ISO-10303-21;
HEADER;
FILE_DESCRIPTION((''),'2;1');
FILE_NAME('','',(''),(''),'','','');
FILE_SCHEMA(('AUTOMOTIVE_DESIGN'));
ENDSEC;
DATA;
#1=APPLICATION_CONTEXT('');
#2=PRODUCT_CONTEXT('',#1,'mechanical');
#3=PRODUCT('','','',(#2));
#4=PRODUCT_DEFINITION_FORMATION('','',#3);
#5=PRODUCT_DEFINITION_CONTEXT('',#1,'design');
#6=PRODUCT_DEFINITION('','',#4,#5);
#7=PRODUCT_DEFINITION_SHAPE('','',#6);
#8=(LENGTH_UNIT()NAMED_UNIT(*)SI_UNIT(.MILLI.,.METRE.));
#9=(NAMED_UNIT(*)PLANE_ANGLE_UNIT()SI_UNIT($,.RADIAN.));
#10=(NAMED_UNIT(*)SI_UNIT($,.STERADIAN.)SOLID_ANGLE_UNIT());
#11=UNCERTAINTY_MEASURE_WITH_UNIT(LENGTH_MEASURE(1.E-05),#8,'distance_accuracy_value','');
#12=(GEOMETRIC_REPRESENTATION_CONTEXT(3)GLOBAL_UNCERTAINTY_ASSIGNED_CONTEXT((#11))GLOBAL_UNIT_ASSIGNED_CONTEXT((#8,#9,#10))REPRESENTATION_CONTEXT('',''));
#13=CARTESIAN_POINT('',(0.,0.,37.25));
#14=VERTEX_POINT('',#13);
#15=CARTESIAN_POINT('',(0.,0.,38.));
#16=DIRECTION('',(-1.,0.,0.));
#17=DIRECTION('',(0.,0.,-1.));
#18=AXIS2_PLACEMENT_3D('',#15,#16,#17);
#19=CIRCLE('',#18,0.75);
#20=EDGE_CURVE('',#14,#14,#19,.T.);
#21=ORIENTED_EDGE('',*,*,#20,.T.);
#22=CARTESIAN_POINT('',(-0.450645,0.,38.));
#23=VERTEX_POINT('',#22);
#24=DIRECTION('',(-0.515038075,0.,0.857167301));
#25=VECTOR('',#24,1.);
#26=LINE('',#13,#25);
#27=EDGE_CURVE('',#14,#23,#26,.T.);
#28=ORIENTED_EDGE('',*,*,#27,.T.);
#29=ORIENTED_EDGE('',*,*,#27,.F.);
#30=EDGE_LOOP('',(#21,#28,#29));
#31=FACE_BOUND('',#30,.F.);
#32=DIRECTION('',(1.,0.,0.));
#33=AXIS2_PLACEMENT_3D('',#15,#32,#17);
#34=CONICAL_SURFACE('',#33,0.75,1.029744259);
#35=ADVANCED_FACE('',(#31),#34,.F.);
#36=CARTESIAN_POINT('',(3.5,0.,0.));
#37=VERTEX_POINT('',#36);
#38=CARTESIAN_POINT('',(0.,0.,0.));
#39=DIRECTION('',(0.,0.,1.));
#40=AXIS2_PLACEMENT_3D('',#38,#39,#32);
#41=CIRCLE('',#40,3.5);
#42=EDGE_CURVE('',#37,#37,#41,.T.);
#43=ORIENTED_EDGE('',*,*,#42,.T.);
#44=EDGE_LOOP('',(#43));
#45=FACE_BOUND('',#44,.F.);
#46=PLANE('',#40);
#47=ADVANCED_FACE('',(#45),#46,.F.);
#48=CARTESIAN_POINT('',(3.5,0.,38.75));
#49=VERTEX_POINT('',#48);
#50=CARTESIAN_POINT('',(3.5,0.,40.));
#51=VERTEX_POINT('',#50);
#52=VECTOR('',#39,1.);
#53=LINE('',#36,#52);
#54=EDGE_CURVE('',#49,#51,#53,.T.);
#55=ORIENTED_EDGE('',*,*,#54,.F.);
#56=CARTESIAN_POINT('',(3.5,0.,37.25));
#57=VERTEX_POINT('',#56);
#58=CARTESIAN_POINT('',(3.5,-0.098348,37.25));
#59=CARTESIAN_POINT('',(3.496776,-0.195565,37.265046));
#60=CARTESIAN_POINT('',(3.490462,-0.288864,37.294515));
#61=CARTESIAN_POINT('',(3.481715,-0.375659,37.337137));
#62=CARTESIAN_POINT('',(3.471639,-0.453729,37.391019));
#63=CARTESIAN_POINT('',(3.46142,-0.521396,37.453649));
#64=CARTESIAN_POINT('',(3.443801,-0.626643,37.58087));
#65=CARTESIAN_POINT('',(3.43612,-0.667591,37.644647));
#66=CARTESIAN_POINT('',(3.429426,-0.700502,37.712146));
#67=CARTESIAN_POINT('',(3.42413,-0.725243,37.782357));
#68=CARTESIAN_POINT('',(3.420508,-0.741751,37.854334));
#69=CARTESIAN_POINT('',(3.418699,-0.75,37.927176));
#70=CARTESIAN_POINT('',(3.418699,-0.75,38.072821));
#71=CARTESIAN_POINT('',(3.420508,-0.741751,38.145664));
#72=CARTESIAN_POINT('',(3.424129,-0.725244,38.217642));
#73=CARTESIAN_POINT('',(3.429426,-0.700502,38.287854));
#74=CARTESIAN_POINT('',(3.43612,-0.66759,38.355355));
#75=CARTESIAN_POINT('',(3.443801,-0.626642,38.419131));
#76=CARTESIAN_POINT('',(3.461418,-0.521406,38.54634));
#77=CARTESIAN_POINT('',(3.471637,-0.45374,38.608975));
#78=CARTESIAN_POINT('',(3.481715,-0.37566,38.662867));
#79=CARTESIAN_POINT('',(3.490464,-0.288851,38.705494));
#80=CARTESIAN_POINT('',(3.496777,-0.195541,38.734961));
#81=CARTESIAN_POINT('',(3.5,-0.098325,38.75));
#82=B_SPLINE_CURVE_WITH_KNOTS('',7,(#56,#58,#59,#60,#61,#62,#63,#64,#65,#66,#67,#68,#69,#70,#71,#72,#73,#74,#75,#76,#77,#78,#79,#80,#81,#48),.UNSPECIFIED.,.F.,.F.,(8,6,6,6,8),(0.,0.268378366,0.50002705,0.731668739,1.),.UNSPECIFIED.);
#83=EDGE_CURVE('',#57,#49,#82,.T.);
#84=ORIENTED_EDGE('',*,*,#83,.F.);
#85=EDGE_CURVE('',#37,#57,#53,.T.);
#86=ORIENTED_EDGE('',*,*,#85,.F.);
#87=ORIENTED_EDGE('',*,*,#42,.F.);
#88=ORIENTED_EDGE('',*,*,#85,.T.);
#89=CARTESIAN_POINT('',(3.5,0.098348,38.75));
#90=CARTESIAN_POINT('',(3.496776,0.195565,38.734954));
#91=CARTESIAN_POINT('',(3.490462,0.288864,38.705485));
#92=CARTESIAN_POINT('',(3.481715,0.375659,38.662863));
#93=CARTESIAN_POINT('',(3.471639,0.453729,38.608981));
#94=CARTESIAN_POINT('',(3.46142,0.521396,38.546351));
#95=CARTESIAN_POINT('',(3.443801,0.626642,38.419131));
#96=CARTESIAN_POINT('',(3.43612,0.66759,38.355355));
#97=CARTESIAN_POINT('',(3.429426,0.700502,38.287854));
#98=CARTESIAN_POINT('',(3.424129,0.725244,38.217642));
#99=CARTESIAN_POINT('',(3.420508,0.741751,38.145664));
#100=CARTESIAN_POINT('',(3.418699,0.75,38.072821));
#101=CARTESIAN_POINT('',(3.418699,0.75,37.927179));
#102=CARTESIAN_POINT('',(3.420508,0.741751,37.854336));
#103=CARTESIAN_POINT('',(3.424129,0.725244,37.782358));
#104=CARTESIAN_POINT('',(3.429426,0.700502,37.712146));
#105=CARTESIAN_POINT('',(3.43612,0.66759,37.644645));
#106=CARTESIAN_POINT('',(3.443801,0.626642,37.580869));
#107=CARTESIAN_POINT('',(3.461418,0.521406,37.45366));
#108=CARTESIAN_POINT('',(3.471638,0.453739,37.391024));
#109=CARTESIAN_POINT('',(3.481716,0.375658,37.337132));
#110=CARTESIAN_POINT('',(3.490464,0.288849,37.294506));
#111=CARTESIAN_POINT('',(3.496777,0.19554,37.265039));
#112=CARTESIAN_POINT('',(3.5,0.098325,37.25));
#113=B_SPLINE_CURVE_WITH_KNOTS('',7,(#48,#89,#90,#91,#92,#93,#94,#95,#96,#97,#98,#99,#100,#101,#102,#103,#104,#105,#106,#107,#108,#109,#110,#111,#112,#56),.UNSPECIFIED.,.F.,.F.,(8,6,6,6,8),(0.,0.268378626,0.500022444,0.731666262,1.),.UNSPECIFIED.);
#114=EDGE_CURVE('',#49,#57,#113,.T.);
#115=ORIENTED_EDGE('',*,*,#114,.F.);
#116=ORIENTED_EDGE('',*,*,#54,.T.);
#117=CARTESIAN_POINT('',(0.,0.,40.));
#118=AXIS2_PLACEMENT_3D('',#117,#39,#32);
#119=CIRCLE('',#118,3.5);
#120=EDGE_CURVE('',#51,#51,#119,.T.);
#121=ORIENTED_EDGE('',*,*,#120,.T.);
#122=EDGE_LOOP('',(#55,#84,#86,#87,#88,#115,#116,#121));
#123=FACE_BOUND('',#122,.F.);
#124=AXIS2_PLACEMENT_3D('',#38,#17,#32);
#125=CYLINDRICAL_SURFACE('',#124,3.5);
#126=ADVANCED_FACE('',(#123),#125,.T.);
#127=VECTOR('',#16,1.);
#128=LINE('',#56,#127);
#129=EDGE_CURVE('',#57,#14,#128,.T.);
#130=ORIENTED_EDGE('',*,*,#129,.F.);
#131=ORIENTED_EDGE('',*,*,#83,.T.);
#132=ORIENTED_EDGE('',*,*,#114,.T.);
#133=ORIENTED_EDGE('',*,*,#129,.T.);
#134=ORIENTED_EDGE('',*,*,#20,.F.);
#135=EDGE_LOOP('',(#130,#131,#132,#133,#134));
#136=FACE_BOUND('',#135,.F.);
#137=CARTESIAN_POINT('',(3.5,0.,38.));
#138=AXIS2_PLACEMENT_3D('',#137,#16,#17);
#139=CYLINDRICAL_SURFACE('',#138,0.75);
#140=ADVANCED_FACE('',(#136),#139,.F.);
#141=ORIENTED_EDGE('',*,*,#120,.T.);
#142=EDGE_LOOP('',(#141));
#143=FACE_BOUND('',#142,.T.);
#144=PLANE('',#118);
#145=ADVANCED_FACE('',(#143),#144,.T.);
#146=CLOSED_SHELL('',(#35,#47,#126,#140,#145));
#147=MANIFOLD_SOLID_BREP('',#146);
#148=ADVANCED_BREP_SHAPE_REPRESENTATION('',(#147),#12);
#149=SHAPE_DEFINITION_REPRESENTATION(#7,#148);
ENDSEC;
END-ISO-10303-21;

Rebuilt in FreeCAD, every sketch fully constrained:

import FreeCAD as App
import Part
import Sketcher

V = App.Vector

doc = App.newDocument("Part")
body = doc.addObject("PartDesign::Body", "Body")

sketch1 = body.newObject("Sketcher::SketchObject", "Sketch")
sketch1.AttachmentSupport = (doc.getObject("XY_Plane"), [""])
sketch1.MapMode = "FlatFace"
sketch1.addGeometry(Part.Circle(V(0, 0, 0), V(0, 0, 1), 3.5), False)
sketch1.addConstraint(Sketcher.Constraint("Coincident", 0, 3, -1, 1))
sketch1.addConstraint(Sketcher.Constraint("Diameter", 0, 7.0))
pad1 = body.newObject("PartDesign::Pad", "Pad")
pad1.Profile = sketch1
pad1.Length = 40

sketch2 = body.newObject("Sketcher::SketchObject", "Sketch001")
sketch2.AttachmentSupport = (doc.getObject("YZ_Plane"), [""])
sketch2.MapMode = "FlatFace"
sketch2.AttachmentOffset = App.Placement(V(0, 0, 3.5), App.Rotation())
sketch2.addGeometry(Part.Circle(V(0, 38, 0), V(0, 0, 1), 0.75), False)
sketch2.addConstraint(Sketcher.Constraint("PointOnObject", 0, 3, -2))
sketch2.addConstraint(Sketcher.Constraint("Diameter", 0, 1.5))
sketch2.addConstraint(Sketcher.Constraint("DistanceY", -1, 1, 0, 3, 38.0))
doc.recompute()
hole = body.newObject("PartDesign::Hole", "Hole")
hole.Profile = sketch2
hole.ThreadType = "None"
hole.Diameter = 1.5
hole.DepthType = "Dimension"
hole.Depth = 3.5
hole.DrillPoint = "Angled"
hole.DrillPointAngle = 118

doc.recompute()
